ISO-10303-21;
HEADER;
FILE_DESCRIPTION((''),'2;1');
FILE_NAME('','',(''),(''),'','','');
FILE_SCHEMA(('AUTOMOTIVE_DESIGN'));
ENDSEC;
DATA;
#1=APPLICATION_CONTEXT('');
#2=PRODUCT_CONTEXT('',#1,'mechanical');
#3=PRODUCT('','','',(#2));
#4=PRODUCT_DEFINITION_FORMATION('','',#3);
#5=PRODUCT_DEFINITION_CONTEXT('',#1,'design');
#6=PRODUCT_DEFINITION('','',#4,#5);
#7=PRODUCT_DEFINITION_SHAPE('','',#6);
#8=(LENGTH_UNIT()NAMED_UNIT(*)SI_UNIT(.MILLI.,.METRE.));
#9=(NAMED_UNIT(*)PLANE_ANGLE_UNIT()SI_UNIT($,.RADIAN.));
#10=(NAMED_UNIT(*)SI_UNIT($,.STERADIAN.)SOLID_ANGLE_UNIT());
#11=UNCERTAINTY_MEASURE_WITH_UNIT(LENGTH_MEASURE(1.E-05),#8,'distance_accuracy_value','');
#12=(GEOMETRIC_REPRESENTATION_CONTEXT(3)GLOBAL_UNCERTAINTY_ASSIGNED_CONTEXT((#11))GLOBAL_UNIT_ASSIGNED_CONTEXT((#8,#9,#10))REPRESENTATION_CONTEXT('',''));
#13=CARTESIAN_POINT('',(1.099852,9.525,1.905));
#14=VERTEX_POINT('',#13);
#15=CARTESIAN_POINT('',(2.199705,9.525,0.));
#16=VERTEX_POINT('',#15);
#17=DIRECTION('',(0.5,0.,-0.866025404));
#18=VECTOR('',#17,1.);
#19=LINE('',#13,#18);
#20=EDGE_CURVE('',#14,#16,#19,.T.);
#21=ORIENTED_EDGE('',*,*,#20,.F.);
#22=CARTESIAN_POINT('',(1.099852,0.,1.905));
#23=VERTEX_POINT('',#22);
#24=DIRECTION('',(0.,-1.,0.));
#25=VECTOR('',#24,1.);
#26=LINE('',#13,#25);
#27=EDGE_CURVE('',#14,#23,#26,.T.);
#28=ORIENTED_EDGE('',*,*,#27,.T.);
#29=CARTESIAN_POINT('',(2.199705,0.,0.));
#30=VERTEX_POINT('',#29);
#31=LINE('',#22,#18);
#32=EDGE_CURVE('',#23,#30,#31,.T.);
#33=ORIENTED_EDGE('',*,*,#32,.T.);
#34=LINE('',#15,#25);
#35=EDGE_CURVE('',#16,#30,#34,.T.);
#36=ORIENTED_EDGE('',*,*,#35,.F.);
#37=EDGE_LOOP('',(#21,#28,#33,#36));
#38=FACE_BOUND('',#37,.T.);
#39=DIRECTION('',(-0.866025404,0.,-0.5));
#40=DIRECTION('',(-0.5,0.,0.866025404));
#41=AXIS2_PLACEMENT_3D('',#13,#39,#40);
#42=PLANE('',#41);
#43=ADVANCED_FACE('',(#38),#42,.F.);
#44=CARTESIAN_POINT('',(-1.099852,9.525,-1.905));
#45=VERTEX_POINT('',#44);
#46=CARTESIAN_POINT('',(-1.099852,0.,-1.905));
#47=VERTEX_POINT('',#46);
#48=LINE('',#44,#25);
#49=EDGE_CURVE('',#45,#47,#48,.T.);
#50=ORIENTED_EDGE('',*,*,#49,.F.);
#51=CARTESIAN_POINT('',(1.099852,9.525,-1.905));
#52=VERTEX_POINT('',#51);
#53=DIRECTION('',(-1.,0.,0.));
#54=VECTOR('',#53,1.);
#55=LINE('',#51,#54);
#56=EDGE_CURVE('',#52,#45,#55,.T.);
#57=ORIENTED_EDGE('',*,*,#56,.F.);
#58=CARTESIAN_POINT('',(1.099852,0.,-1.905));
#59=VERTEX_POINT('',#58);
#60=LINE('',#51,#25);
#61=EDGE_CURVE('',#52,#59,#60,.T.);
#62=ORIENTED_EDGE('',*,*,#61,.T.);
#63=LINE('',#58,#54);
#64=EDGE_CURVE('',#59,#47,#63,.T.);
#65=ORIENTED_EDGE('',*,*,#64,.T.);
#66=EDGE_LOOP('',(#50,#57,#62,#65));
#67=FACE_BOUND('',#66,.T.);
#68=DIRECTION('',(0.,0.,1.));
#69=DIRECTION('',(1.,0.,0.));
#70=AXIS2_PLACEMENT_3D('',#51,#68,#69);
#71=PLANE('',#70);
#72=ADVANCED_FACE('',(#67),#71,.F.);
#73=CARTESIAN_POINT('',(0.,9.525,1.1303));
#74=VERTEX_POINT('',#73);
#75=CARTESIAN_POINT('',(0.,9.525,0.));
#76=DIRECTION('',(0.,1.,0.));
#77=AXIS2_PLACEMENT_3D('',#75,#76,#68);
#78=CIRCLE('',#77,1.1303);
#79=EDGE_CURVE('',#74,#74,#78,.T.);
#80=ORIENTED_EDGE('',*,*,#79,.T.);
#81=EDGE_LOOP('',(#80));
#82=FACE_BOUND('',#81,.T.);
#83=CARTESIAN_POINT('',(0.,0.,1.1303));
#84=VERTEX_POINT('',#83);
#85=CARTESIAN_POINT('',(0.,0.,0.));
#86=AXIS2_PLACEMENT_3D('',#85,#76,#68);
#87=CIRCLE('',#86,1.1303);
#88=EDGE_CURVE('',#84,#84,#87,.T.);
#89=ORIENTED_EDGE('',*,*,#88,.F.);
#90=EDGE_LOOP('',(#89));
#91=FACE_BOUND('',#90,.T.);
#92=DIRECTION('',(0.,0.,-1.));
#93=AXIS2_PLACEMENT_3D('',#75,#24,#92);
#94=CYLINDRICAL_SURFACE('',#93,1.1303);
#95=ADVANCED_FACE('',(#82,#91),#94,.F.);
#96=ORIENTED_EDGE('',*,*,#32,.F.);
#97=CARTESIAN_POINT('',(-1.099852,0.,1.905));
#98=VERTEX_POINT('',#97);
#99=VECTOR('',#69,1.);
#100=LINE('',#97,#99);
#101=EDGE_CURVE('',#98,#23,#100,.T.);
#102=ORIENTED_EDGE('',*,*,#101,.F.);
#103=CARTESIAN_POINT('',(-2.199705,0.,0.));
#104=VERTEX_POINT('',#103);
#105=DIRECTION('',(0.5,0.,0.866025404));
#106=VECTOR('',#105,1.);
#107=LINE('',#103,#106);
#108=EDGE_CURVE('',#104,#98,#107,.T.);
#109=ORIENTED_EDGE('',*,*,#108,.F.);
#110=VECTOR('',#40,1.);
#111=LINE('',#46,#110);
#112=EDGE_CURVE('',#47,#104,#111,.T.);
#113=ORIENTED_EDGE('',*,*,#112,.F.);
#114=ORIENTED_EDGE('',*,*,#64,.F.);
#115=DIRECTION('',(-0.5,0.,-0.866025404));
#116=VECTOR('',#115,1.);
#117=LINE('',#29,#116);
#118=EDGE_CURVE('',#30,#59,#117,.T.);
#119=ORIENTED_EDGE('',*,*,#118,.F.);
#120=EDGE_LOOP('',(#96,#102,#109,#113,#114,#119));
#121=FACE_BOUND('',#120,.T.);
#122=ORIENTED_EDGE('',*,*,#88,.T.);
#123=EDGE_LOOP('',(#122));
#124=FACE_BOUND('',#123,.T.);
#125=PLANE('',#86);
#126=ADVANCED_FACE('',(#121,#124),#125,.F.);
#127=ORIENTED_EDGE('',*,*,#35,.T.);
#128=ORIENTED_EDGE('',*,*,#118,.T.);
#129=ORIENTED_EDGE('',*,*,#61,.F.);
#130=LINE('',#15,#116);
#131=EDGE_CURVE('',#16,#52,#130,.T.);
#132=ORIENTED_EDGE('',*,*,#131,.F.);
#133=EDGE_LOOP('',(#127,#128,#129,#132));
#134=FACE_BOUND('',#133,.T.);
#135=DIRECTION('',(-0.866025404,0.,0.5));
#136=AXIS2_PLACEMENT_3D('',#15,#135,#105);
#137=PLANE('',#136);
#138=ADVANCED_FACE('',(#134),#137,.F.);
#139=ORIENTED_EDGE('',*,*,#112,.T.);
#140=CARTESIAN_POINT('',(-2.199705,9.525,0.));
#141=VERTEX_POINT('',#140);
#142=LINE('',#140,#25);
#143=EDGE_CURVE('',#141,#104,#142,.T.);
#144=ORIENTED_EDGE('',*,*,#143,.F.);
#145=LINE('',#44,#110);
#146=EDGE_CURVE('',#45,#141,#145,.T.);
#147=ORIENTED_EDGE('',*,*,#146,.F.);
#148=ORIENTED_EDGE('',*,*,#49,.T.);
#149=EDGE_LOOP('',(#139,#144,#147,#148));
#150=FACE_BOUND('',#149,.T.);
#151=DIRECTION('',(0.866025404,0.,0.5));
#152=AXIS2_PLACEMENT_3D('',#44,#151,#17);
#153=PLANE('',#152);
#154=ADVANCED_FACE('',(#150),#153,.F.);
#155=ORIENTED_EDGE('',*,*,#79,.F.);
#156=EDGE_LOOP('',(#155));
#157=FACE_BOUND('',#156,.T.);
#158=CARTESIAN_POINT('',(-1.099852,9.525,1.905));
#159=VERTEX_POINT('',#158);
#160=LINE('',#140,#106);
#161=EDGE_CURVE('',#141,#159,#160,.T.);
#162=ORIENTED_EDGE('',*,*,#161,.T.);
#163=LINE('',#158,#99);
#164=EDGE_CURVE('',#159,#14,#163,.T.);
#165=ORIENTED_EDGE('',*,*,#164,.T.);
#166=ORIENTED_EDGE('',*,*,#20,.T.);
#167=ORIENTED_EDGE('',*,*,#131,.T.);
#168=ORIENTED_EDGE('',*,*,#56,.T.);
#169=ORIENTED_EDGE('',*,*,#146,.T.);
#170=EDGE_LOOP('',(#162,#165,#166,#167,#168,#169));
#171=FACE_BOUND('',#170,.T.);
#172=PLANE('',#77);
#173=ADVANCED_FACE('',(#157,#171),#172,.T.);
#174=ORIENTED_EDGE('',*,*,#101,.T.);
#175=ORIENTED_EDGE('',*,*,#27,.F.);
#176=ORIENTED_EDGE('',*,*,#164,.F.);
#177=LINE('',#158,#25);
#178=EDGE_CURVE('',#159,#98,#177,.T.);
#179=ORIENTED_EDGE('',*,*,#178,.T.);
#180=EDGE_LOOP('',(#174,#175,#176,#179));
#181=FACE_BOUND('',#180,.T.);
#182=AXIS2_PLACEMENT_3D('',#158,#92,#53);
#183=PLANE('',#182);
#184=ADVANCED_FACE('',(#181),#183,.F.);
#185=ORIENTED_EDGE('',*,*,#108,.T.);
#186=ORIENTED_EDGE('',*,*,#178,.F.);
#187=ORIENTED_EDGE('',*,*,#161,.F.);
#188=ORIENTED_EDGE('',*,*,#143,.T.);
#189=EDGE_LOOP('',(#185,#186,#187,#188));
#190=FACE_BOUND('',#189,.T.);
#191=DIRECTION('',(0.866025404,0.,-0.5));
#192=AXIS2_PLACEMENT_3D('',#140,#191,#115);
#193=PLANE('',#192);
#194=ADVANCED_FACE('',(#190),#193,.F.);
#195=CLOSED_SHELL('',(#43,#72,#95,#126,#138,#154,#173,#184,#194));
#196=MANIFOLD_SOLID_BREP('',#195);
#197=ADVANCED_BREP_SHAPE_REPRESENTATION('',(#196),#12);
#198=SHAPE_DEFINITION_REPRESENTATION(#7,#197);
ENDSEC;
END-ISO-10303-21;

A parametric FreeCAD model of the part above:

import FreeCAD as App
import Part
import Sketcher

V = App.Vector
Q = App.Units.Quantity

doc = App.newDocument("Part")
body = doc.addObject("PartDesign::Body", "Body")

sketch1 = doc.addObject("Sketcher::SketchObject", "Sketch")
body.addObject(sketch1)
sketch1.AttachmentSupport = (doc.XZ_Plane, [""])
sketch1.MapMode = "FlatFace"
sketch1.addGeometry([
    Part.LineSegment(V(1.1, 1.9, 0), V(2.2, 0, 0)),
    Part.LineSegment(V(2.2, 0, 0), V(1.1, -1.9, 0)),
    Part.LineSegment(V(1.1, -1.9, 0), V(-1.1, -1.9, 0)),
    Part.LineSegment(V(-1.1, -1.9, 0), V(-2.2, 0, 0)),
    Part.LineSegment(V(-2.2, 0, 0), V(-1.1, 1.9, 0)),
    Part.LineSegment(V(-1.1, 1.9, 0), V(1.1, 1.9, 0)),
    Part.Circle(V(0, 0, 0), V(0, 0, 1), 1.1),
], False)
sketch1.addConstraint([
    Sketcher.Constraint("Coincident", 0, 2, 1, 1),
    Sketcher.Constraint("Coincident", 1, 2, 2, 1),
    Sketcher.Constraint("Coincident", 2, 2, 3, 1),
    Sketcher.Constraint("Coincident", 3, 2, 4, 1),
    Sketcher.Constraint("Coincident", 4, 2, 5, 1),
    Sketcher.Constraint("Coincident", 5, 2, 0, 1),
    Sketcher.Constraint("Horizontal", 2),
    Sketcher.Constraint("Horizontal", 5),
    Sketcher.Constraint("Coincident", 6, 3, -1, 1),
    Sketcher.Constraint("Symmetric", 0, 2, 3, 2, -1, 1),
    Sketcher.Constraint("Symmetric", 1, 2, 4, 2, -1, 1),
    Sketcher.Constraint("PointOnObject", 0, 2, -1),
    Sketcher.Constraint("Parallel", 0, 3),
    Sketcher.Constraint("Vertical", 2, 2, 4, 2),
    Sketcher.Constraint("Diameter", 6, Q("0.089 in")),
    Sketcher.Constraint("Angle", 0, Q("-60 deg")),
    Sketcher.Constraint("DistanceY", 2, 2, 4, 2, Q("0.15 in")),
    Sketcher.Constraint("DistanceX", 2, 2, 2, 1, 2.199705),
])
pad1 = doc.addObject("PartDesign::Pad", "Pad")
body.addObject(pad1)
pad1.Profile = sketch1
pad1.Length = Q("0.375 in")
pad1.Reversed = True

doc.recompute()
